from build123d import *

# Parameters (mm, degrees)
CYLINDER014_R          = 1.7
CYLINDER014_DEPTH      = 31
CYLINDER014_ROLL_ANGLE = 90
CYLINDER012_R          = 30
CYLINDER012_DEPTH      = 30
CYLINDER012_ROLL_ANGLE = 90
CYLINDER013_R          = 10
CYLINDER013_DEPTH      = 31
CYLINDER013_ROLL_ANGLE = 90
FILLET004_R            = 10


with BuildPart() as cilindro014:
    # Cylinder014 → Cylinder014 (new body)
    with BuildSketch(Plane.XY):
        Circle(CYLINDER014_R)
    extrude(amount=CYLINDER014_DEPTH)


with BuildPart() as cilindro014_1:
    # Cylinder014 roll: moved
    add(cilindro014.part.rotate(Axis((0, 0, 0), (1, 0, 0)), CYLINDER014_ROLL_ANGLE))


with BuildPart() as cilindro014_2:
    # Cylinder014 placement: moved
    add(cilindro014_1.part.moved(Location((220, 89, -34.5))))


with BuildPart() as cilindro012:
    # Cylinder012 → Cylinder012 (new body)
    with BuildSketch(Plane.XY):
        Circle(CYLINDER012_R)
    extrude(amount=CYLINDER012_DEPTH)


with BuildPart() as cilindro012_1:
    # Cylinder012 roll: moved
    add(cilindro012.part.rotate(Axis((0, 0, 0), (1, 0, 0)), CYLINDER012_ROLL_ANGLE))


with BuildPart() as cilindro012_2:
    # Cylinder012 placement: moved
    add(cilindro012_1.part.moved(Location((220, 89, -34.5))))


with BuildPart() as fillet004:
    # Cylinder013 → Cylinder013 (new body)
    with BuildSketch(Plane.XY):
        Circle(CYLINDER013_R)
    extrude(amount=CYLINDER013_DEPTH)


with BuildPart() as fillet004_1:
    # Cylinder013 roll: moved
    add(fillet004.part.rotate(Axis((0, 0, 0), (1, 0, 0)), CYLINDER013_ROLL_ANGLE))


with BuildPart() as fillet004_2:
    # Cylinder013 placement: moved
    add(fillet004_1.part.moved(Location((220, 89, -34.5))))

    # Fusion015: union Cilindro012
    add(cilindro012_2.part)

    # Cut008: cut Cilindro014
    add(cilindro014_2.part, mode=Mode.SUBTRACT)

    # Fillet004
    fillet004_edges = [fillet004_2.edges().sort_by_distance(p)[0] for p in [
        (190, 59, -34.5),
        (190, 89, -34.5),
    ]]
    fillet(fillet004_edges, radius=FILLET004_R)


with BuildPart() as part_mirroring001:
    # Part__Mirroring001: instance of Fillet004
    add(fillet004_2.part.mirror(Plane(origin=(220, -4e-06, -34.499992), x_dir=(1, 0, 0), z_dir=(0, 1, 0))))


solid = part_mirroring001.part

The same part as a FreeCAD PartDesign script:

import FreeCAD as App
import Part
import Sketcher
from FreeCAD import Vector
Q = App.Units.Quantity


def edges_at(feature, points):
    """Names of the edges that pass closest to the given points."""
    edges = feature.Shape.Edges
    near = lambda p: min(range(len(edges)), key=lambda i: edges[i].distToShape(Part.Vertex(*p))[0])
    return sorted({f"Edge{near(p) + 1}" for p in points})

doc = App.newDocument("Part")
body = doc.addObject("PartDesign::Body", "Body")

sketch1 = body.newObject("Sketcher::SketchObject", "Sketch")
sketch1.AttachmentSupport = (doc.getObject("XY_Plane"), [""])
sketch1.MapMode = "FlatFace"
sketch1.addGeometry(Part.Circle(Vector(0, 0, 0), Vector(0, 0, 1), 1.7), False)
sketch1.addConstraint([
    Sketcher.Constraint("Coincident", 0, 3, -1, 1),
    Sketcher.Constraint("Diameter", 0, Q("3.4 mm")),
])
pad1 = body.newObject("PartDesign::Pad", "Pad")
pad1.Profile = sketch1
pad1.Length = 31
body2 = doc.addObject("PartDesign::Body", "Body001")
doc.recompute()

body.Placement = App.Placement(Vector(0, 0, 0), App.Rotation(Vector(1, 0, 0), 90))
boolean = body2.newObject("PartDesign::Boolean", "Boolean")
boolean.Type = "Fuse"
boolean.addObjects([body])
body3 = doc.addObject("PartDesign::Body", "Body002")
doc.recompute()

body2.Placement = App.Placement(Vector(220, 89, -34.5), App.Rotation(Vector(0, 0, 1), 0))
boolean2 = body3.newObject("PartDesign::Boolean", "Boolean001")
boolean2.Type = "Fuse"
boolean2.addObjects([body2])
body4 = doc.addObject("PartDesign::Body", "Body003")

sketch2 = body4.newObject("Sketcher::SketchObject", "Sketch001")
sketch2.AttachmentSupport = (doc.getObject("XY_Plane003"), [""])
sketch2.MapMode = "FlatFace"
sketch2.addGeometry(Part.Circle(Vector(0, 0, 0), Vector(0, 0, 1), 30), False)
sketch2.addConstraint([
    Sketcher.Constraint("Coincident", 0, 3, -1, 1),
    Sketcher.Constraint("Diameter", 0, Q("60 mm")),
])
pad2 = body4.newObject("PartDesign::Pad", "Pad001")
pad2.Profile = sketch2
pad2.Length = 30
body5 = doc.addObject("PartDesign::Body", "Body004")
doc.recompute()

body4.Placement = App.Placement(Vector(0, 0, 0), App.Rotation(Vector(1, 0, 0), 90))
boolean3 = body5.newObject("PartDesign::Boolean", "Boolean002")
boolean3.Type = "Fuse"
boolean3.addObjects([body4])
body6 = doc.addObject("PartDesign::Body", "Body005")
doc.recompute()

body5.Placement = App.Placement(Vector(220, 89, -34.5), App.Rotation(Vector(0, 0, 1), 0))
boolean4 = body6.newObject("PartDesign::Boolean", "Boolean003")
boolean4.Type = "Fuse"
boolean4.addObjects([body5])
body7 = doc.addObject("PartDesign::Body", "Body006")

sketch3 = body7.newObject("Sketcher::SketchObject", "Sketch002")
sketch3.AttachmentSupport = (doc.getObject("XY_Plane006"), [""])
sketch3.MapMode = "FlatFace"
sketch3.addGeometry(Part.Circle(Vector(0, 0, 0), Vector(0, 0, 1), 10), False)
sketch3.addConstraint([
    Sketcher.Constraint("Coincident", 0, 3, -1, 1),
    Sketcher.Constraint("Diameter", 0, Q("20 mm")),
])
pad3 = body7.newObject("PartDesign::Pad", "Pad002")
pad3.Profile = sketch3
pad3.Length = 31
body8 = doc.addObject("PartDesign::Body", "Body007")
doc.recompute()

body7.Placement = App.Placement(Vector(0, 0, 0), App.Rotation(Vector(1, 0, 0), 90))
boolean5 = body8.newObject("PartDesign::Boolean", "Boolean004")
boolean5.Type = "Fuse"
boolean5.addObjects([body7])
body9 = doc.addObject("PartDesign::Body", "Body008")
doc.recompute()

body8.Placement = App.Placement(Vector(220, 89, -34.5), App.Rotation(Vector(0, 0, 1), 0))
boolean6 = body9.newObject("PartDesign::Boolean", "Boolean005")
boolean6.Type = "Fuse"
boolean6.addObjects([body8])
doc.recompute()

boolean7 = body9.newObject("PartDesign::Boolean", "Boolean006")
boolean7.Type = "Fuse"
boolean7.addObjects([body6])
doc.recompute()

boolean8 = body9.newObject("PartDesign::Boolean", "Boolean007")
boolean8.Type = "Cut"
boolean8.addObjects([body3])
doc.recompute()

fillet = body9.newObject("PartDesign::Fillet", "Fillet")
fillet.Base = (boolean8, edges_at(boolean8, [(190, 59, -34.5), (190, 89, -34.5)]))
fillet.Radius = 10
body10 = doc.addObject("PartDesign::Body", "Body009")
doc.recompute()

mirroring = doc.addObject("Part::Mirroring", "Mirroring")
mirroring.Source = body9
mirroring.Base = Vector(220, -0.000004, -34.499992)
mirroring.Normal = Vector(0, 1, 0)
body10.BaseFeature = mirroring
doc.recompute()
body9.Visibility = False
mirroring.Visibility = False

doc.recompute()
